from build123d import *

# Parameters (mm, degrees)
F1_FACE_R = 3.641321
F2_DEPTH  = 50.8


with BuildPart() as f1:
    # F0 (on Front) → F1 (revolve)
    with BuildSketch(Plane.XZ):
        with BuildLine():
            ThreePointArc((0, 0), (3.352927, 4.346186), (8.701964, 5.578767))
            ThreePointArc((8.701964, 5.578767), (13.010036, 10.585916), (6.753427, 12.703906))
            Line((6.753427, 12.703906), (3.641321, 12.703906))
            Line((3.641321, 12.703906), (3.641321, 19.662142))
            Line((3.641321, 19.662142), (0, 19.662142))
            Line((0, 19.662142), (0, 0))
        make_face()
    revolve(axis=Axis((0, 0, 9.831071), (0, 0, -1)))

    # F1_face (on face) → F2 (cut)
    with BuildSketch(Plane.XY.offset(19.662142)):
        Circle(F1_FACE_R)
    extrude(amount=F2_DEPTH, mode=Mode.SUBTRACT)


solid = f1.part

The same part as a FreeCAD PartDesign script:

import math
import FreeCAD as App
import Part
import Sketcher
Q = App.Units.Quantity

doc = App.newDocument("Part")
body = doc.addObject("PartDesign::Body", "Body")

# Sketch on XZ plane
sketch1 = doc.addObject("Sketcher::SketchObject", "Sketch")
body.addObject(sketch1)
sketch1.AttachmentSupport = (doc.XZ_Plane, [""])
sketch1.MapMode = "FlatFace"
sketch1.addGeometry(Part.ArcOfCircle(Part.Circle(App.Vector(7.749866, -2.51232, 0), App.Vector(0, 0, 1), 8.146912), math.radians(83.28873), math.radians(162.038555)), False)
sketch1.addGeometry(Part.ArcOfCircle(Part.Circle(App.Vector(9.167514, 9.535089, 0), App.Vector(0, 0, 1), 3.983619), math.radians(-96.711264), math.radians(127.301082)), False)
sketch1.addGeometry(Part.LineSegment(App.Vector(6.753427, 12.703906, 0), App.Vector(3.641321, 12.703906, 0)), False)
sketch1.addGeometry(Part.LineSegment(App.Vector(3.641321, 12.703906, 0), App.Vector(3.641321, 19.662142, 0)), False)
sketch1.addGeometry(Part.LineSegment(App.Vector(3.641321, 19.662142, 0), App.Vector(0, 19.662142, 0)), False)
sketch1.addGeometry(Part.LineSegment(App.Vector(0, 19.662142, 0), App.Vector(0, 0, 0)), False)
sketch1.addConstraint(Sketcher.Constraint("Tangent", 0, 1, 1, 1))
sketch1.addConstraint(Sketcher.Constraint("Coincident", 1, 2, 2, 1))
sketch1.addConstraint(Sketcher.Constraint("Coincident", 2, 2, 3, 1))
sketch1.addConstraint(Sketcher.Constraint("Coincident", 3, 2, 4, 1))
sketch1.addConstraint(Sketcher.Constraint("Coincident", 4, 2, 5, 1))
sketch1.addConstraint(Sketcher.Constraint("Coincident", 5, 2, 0, 2))
sketch1.addConstraint(Sketcher.Constraint("Horizontal", 2))
sketch1.addConstraint(Sketcher.Constraint("Vertical", 3))
sketch1.addConstraint(Sketcher.Constraint("Horizontal", 4))
sketch1.addConstraint(Sketcher.Constraint("Vertical", 5))
sketch1.addConstraint(Sketcher.Constraint("Coincident", 5, 2, -1, 1))
sketch1.addConstraint(Sketcher.Constraint("DistanceY", 5, 2, 5, 1, Q("0.7741001 in")))
sketch1.addConstraint(Sketcher.Constraint("Radius", 1, Q("3.983619 mm")))
sketch1.addConstraint(Sketcher.Constraint("Radius", 0, Q("8.146912 mm")))
sketch1.addConstraint(Sketcher.Constraint("DistanceX", 4, 2, 4, 1, Q("3.641321 mm")))
sketch1.addConstraint(Sketcher.Constraint("DistanceX", 2, 2, 2, 1, Q("3.112106 mm")))
sketch1.addConstraint(Sketcher.Constraint("DistanceY", 3, 1, 3, 2, Q("6.958236 mm")))
sketch1.addConstraint(Sketcher.Constraint("DistanceY", 0, 3, -1, 1, Q("2.51232 mm")))
revolution = doc.addObject("PartDesign::Revolution", "Revolution")
body.addObject(revolution)
revolution.Profile = sketch1
revolution.ReferenceAxis = (sketch1, ["V_Axis"])
revolution.Angle = 360

# Sketch on XY plane
sketch2 = doc.addObject("Sketcher::SketchObject", "Sketch001")
body.addObject(sketch2)
sketch2.AttachmentSupport = (doc.XY_Plane, [""])
sketch2.MapMode = "FlatFace"
sketch2.AttachmentOffset = App.Placement(App.Vector(0, 0, 0.7741001 * 25.4), App.Rotation())
sketch2.addGeometry(Part.Circle(App.Vector(0, 0, 0), App.Vector(0, 0, 1), 3.641321), False)
sketch2.addConstraint(Sketcher.Constraint("Coincident", 0, 3, -1, 1))
sketch2.addConstraint(Sketcher.Constraint("Diameter", 0, Q("7.282642 mm")))
pocket1 = doc.addObject("PartDesign::Pocket", "Pocket")
body.addObject(pocket1)
pocket1.Profile = sketch2
pocket1.Length = Q("2 in")
pocket1.Reversed = True

doc.recompute()
